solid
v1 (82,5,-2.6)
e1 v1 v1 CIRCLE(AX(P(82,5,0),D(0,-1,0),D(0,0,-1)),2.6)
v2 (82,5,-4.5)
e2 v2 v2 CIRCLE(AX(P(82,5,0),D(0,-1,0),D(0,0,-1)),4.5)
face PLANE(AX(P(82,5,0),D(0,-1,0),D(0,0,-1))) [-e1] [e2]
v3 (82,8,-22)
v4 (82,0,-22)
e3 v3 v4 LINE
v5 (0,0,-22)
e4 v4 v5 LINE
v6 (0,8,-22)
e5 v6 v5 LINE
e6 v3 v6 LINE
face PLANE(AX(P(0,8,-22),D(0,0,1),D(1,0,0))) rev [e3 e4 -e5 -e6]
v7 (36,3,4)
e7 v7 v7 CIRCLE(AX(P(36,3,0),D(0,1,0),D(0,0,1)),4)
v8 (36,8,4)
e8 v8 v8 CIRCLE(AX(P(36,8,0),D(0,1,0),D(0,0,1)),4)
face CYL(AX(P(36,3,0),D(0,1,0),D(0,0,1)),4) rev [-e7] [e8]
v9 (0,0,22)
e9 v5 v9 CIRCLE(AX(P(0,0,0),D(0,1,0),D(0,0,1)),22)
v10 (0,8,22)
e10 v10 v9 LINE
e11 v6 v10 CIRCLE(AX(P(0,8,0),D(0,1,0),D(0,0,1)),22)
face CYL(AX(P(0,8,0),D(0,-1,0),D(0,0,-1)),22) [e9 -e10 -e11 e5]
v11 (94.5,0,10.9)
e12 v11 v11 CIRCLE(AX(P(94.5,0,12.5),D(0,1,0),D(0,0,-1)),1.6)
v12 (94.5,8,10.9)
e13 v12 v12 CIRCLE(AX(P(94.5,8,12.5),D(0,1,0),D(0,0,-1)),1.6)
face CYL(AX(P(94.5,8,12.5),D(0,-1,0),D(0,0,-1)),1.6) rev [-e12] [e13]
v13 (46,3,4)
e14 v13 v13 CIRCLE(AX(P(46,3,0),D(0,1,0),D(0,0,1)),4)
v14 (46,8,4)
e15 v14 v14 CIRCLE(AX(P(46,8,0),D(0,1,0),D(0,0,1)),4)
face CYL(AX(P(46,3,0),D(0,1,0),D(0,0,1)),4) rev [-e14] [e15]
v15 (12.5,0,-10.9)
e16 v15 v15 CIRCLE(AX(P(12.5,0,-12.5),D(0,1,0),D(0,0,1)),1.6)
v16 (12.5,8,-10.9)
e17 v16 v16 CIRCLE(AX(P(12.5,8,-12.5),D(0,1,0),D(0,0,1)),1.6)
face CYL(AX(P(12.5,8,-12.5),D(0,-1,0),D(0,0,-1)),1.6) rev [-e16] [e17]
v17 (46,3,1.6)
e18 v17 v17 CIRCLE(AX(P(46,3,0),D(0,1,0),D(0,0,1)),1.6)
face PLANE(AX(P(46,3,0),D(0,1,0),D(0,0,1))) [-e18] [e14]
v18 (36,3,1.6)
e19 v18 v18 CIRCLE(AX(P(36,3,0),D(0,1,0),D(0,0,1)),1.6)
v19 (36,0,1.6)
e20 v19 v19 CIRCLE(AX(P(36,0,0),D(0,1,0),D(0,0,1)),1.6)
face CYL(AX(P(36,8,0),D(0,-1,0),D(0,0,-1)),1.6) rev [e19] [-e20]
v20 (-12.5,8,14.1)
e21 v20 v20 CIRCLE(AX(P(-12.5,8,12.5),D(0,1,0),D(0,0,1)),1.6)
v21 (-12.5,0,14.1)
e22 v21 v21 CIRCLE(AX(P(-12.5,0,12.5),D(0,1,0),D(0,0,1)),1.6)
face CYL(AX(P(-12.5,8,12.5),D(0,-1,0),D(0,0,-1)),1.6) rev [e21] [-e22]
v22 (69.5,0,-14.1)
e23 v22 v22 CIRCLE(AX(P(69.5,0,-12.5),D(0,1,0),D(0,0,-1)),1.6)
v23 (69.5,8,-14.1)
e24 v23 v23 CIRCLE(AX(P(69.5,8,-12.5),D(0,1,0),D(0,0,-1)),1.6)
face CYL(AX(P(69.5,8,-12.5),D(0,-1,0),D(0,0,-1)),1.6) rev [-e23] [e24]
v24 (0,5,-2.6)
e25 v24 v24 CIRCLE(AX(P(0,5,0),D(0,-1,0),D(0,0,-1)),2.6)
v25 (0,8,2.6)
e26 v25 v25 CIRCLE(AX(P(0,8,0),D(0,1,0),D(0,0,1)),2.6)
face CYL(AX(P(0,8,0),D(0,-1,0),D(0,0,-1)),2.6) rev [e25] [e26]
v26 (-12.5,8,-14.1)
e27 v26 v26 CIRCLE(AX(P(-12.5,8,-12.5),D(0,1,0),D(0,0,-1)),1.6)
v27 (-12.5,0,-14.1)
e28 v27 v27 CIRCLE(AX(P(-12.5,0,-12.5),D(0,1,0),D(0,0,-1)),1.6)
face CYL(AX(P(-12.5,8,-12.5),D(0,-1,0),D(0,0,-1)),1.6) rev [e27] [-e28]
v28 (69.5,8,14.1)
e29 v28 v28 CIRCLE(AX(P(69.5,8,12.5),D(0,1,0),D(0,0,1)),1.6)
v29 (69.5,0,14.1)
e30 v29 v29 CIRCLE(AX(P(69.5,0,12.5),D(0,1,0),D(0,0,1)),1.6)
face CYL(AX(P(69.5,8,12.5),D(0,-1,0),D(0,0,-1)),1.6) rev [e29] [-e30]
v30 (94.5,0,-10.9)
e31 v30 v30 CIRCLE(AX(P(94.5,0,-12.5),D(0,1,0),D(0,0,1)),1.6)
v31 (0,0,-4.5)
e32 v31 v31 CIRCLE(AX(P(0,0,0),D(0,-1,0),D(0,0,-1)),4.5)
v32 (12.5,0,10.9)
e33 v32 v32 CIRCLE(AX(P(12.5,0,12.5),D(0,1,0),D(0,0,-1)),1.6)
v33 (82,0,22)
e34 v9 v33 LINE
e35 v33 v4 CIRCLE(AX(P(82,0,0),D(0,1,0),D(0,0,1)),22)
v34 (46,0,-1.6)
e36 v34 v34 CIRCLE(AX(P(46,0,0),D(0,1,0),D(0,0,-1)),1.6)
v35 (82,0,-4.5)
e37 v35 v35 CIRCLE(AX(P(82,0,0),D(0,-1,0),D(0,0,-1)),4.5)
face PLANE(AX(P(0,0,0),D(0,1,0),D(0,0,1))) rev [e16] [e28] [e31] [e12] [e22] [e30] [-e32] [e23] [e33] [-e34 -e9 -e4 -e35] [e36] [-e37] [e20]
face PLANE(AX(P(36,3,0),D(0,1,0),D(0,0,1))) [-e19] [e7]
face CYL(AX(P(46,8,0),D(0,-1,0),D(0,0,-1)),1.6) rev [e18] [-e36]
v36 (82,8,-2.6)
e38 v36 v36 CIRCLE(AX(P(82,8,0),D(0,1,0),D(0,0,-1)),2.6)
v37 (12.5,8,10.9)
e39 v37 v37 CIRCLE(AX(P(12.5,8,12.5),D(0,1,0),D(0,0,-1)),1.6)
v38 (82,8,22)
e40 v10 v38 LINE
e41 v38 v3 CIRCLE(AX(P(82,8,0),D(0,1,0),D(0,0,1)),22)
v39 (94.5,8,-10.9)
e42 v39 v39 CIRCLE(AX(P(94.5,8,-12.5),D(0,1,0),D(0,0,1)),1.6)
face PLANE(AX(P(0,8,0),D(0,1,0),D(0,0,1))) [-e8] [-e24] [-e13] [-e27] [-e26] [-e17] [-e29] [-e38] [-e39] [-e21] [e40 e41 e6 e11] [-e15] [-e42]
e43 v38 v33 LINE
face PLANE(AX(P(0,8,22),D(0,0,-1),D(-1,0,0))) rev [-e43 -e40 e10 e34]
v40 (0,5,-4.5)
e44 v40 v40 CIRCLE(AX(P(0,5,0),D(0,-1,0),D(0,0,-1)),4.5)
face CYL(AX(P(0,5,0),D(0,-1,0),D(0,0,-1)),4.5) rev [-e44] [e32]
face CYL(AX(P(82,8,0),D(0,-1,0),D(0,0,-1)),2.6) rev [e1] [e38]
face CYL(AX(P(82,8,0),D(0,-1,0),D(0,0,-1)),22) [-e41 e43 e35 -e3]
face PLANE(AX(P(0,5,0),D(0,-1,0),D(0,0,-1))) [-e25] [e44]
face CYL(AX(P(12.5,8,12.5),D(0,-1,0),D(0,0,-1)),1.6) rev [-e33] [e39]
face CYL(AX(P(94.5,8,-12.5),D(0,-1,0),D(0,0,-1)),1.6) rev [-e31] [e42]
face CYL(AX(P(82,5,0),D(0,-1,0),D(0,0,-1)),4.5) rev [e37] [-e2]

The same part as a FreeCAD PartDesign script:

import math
import FreeCAD as App
import Part
import Sketcher

V = App.Vector

doc = App.newDocument("Part")
body = doc.addObject("PartDesign::Body", "Body")

# Sketch on XZ plane
sketch1 = body.newObject("Sketcher::SketchObject", "Sketch")
sketch1.AttachmentSupport = (doc.getObject("XZ_Plane"), [""])
sketch1.MapMode = "FlatFace"
sketch1.addGeometry([
    Part.LineSegment(V(82, -22, 0), V(0, -22, 0)),  # 0
    Part.ArcOfCircle(Part.Circle(V(0, 0, 0), V(0, 0, 1), 22), math.radians(90), math.radians(270)),  # 1
    Part.LineSegment(V(0, 22, 0), V(82, 22, 0)),  # 2
    Part.ArcOfCircle(Part.Circle(V(82, 0, 0), V(0, 0, 1), 22), math.radians(-90), math.radians(90)),  # 3
    Part.Circle(V(94.5, 12.5, 0), V(0, 0, 1), 1.6),  # 4
    Part.Circle(V(69.5, 12.5, 0), V(0, 0, 1), 1.6),  # 5
    Part.Circle(V(12.5, 12.5, 0), V(0, 0, 1), 1.6),  # 6
    Part.Circle(V(-12.5, 12.5, 0), V(0, 0, 1), 1.6),  # 7
    Part.Circle(V(82, 0, 0), V(0, 0, 1), 2.6),  # 8
    Part.Circle(V(46, 0, 0), V(0, 0, 1), 1.6),  # 9
    Part.Circle(V(94.5, -12.5, 0), V(0, 0, 1), 1.6),  # 10
    Part.Circle(V(69.5, -12.5, 0), V(0, 0, 1), 1.6),  # 11
    Part.Circle(V(36, 0, 0), V(0, 0, 1), 1.6),  # 12
    Part.Circle(V(0, 0, 0), V(0, 0, 1), 2.6),  # 13
    Part.Circle(V(12.5, -12.5, 0), V(0, 0, 1), 1.6),  # 14
    Part.Circle(V(-12.5, -12.5, 0), V(0, 0, 1), 1.6),  # 15
], False)
sketch1.addConstraint([
    Sketcher.Constraint("Tangent", 0, 2, 1, 2),
    Sketcher.Constraint("Tangent", 1, 1, 2, 1),
    Sketcher.Constraint("Tangent", 2, 2, 3, 2),
    Sketcher.Constraint("Tangent", 3, 1, 0, 1),
    Sketcher.Constraint("Horizontal", 0),
    Sketcher.Constraint("Horizontal", 2),
    Sketcher.Constraint("Coincident", 1, 3, -1, 1),
    Sketcher.Constraint("Coincident", 13, 3, -1, 1),
    Sketcher.Constraint("Coincident", 8, 3, 3, 3),
    Sketcher.Constraint("Equal", 4, 5),
    Sketcher.Constraint("Equal", 5, 6),
    Sketcher.Constraint("Equal", 6, 7),
    Sketcher.Constraint("Equal", 7, 9),
    Sketcher.Constraint("Equal", 9, 10),
    Sketcher.Constraint("Equal", 10, 11),
    Sketcher.Constraint("Equal", 11, 12),
    Sketcher.Constraint("Equal", 8, 13),
    Sketcher.Constraint("Equal", 12, 14),
    Sketcher.Constraint("Equal", 14, 15),
    Sketcher.Constraint("Symmetric", 7, 3, 14, 3, -1, 1),
    Sketcher.Constraint("Symmetric", 6, 3, 15, 3, -1, 1),
    Sketcher.Constraint("Symmetric", 6, 3, 7, 3, -2),
    Sketcher.Constraint("Symmetric", 4, 3, 10, 3, -1),
    Sketcher.Constraint("Symmetric", 5, 3, 11, 3, -1),
    Sketcher.Constraint("PointOnObject", 9, 3, -1),
    Sketcher.Constraint("PointOnObject", 12, 3, -1),
    Sketcher.Constraint("Horizontal", 4, 3, 5, 3),
    Sketcher.Constraint("Horizontal", 5, 3, 6, 3),
    Sketcher.Constraint("Radius", 1, 22.0),
    Sketcher.Constraint("Diameter", 4, 3.2),
    Sketcher.Constraint("Diameter", 8, 5.2),
    Sketcher.Constraint("DistanceX", 0, 2, 0, 1, 82.0),
    Sketcher.Constraint("DistanceX", -1, 1, 9, 3, 46.0),
    Sketcher.Constraint("DistanceX", -1, 1, 12, 3, 36.0),
    Sketcher.Constraint("DistanceX", 5, 3, 4, 3, 25.0),
    Sketcher.Constraint("DistanceX", 6, 3, 5, 3, 57.0),
    Sketcher.Constraint("DistanceX", 7, 3, 6, 3, 25.0),
    Sketcher.Constraint("DistanceY", 10, 3, 4, 3, 25.0),
])
pad1 = body.newObject("PartDesign::Pad", "Pad")
pad1.Profile = sketch1
pad1.Length = 8
pad1.Reversed = True

# Sketch on XZ plane
sketch2 = body.newObject("Sketcher::SketchObject", "Sketch001")
sketch2.AttachmentSupport = (doc.getObject("XZ_Plane"), [""])
sketch2.MapMode = "FlatFace"
sketch2.addGeometry([
    Part.Circle(V(0, 0, 0), V(0, 0, 1), 4.5),
    Part.Circle(V(82, 0, 0), V(0, 0, 1), 4.5),
], False)
sketch2.addConstraint([
    Sketcher.Constraint("Coincident", 0, 3, -1, 1),
    Sketcher.Constraint("Equal", 0, 1),
    Sketcher.Constraint("PointOnObject", 1, 3, -1),
    Sketcher.Constraint("Diameter", 0, 9.0),
    Sketcher.Constraint("DistanceX", -1, 1, 1, 3, 82.0),
])
pocket1 = body.newObject("PartDesign::Pocket", "Pocket")
pocket1.Profile = sketch2
pocket1.Length = 5

# Sketch on XZ plane
sketch3 = body.newObject("Sketcher::SketchObject", "Sketch002")
sketch3.AttachmentSupport = (doc.getObject("XZ_Plane"), [""])
sketch3.MapMode = "FlatFace"
sketch3.AttachmentOffset = App.Placement(V(0, 0, -8), App.Rotation())
sketch3.addGeometry([
    Part.Circle(V(36, 0, 0), V(0, 0, 1), 4),
    Part.Circle(V(46, 0, 0), V(0, 0, 1), 4),
], False)
sketch3.addConstraint([
    Sketcher.Constraint("Equal", 0, 1),
    Sketcher.Constraint("PointOnObject", 0, 3, -1),
    Sketcher.Constraint("PointOnObject", 1, 3, -1),
    Sketcher.Constraint("Diameter", 0, 8.0),
    Sketcher.Constraint("DistanceX", -1, 1, 0, 3, 36.0),
    Sketcher.Constraint("DistanceX", -1, 1, 1, 3, 46.0),
])
pocket2 = body.newObject("PartDesign::Pocket", "Pocket001")
pocket2.Profile = sketch3
pocket2.Length = 5
pocket2.Reversed = True

doc.recompute()
